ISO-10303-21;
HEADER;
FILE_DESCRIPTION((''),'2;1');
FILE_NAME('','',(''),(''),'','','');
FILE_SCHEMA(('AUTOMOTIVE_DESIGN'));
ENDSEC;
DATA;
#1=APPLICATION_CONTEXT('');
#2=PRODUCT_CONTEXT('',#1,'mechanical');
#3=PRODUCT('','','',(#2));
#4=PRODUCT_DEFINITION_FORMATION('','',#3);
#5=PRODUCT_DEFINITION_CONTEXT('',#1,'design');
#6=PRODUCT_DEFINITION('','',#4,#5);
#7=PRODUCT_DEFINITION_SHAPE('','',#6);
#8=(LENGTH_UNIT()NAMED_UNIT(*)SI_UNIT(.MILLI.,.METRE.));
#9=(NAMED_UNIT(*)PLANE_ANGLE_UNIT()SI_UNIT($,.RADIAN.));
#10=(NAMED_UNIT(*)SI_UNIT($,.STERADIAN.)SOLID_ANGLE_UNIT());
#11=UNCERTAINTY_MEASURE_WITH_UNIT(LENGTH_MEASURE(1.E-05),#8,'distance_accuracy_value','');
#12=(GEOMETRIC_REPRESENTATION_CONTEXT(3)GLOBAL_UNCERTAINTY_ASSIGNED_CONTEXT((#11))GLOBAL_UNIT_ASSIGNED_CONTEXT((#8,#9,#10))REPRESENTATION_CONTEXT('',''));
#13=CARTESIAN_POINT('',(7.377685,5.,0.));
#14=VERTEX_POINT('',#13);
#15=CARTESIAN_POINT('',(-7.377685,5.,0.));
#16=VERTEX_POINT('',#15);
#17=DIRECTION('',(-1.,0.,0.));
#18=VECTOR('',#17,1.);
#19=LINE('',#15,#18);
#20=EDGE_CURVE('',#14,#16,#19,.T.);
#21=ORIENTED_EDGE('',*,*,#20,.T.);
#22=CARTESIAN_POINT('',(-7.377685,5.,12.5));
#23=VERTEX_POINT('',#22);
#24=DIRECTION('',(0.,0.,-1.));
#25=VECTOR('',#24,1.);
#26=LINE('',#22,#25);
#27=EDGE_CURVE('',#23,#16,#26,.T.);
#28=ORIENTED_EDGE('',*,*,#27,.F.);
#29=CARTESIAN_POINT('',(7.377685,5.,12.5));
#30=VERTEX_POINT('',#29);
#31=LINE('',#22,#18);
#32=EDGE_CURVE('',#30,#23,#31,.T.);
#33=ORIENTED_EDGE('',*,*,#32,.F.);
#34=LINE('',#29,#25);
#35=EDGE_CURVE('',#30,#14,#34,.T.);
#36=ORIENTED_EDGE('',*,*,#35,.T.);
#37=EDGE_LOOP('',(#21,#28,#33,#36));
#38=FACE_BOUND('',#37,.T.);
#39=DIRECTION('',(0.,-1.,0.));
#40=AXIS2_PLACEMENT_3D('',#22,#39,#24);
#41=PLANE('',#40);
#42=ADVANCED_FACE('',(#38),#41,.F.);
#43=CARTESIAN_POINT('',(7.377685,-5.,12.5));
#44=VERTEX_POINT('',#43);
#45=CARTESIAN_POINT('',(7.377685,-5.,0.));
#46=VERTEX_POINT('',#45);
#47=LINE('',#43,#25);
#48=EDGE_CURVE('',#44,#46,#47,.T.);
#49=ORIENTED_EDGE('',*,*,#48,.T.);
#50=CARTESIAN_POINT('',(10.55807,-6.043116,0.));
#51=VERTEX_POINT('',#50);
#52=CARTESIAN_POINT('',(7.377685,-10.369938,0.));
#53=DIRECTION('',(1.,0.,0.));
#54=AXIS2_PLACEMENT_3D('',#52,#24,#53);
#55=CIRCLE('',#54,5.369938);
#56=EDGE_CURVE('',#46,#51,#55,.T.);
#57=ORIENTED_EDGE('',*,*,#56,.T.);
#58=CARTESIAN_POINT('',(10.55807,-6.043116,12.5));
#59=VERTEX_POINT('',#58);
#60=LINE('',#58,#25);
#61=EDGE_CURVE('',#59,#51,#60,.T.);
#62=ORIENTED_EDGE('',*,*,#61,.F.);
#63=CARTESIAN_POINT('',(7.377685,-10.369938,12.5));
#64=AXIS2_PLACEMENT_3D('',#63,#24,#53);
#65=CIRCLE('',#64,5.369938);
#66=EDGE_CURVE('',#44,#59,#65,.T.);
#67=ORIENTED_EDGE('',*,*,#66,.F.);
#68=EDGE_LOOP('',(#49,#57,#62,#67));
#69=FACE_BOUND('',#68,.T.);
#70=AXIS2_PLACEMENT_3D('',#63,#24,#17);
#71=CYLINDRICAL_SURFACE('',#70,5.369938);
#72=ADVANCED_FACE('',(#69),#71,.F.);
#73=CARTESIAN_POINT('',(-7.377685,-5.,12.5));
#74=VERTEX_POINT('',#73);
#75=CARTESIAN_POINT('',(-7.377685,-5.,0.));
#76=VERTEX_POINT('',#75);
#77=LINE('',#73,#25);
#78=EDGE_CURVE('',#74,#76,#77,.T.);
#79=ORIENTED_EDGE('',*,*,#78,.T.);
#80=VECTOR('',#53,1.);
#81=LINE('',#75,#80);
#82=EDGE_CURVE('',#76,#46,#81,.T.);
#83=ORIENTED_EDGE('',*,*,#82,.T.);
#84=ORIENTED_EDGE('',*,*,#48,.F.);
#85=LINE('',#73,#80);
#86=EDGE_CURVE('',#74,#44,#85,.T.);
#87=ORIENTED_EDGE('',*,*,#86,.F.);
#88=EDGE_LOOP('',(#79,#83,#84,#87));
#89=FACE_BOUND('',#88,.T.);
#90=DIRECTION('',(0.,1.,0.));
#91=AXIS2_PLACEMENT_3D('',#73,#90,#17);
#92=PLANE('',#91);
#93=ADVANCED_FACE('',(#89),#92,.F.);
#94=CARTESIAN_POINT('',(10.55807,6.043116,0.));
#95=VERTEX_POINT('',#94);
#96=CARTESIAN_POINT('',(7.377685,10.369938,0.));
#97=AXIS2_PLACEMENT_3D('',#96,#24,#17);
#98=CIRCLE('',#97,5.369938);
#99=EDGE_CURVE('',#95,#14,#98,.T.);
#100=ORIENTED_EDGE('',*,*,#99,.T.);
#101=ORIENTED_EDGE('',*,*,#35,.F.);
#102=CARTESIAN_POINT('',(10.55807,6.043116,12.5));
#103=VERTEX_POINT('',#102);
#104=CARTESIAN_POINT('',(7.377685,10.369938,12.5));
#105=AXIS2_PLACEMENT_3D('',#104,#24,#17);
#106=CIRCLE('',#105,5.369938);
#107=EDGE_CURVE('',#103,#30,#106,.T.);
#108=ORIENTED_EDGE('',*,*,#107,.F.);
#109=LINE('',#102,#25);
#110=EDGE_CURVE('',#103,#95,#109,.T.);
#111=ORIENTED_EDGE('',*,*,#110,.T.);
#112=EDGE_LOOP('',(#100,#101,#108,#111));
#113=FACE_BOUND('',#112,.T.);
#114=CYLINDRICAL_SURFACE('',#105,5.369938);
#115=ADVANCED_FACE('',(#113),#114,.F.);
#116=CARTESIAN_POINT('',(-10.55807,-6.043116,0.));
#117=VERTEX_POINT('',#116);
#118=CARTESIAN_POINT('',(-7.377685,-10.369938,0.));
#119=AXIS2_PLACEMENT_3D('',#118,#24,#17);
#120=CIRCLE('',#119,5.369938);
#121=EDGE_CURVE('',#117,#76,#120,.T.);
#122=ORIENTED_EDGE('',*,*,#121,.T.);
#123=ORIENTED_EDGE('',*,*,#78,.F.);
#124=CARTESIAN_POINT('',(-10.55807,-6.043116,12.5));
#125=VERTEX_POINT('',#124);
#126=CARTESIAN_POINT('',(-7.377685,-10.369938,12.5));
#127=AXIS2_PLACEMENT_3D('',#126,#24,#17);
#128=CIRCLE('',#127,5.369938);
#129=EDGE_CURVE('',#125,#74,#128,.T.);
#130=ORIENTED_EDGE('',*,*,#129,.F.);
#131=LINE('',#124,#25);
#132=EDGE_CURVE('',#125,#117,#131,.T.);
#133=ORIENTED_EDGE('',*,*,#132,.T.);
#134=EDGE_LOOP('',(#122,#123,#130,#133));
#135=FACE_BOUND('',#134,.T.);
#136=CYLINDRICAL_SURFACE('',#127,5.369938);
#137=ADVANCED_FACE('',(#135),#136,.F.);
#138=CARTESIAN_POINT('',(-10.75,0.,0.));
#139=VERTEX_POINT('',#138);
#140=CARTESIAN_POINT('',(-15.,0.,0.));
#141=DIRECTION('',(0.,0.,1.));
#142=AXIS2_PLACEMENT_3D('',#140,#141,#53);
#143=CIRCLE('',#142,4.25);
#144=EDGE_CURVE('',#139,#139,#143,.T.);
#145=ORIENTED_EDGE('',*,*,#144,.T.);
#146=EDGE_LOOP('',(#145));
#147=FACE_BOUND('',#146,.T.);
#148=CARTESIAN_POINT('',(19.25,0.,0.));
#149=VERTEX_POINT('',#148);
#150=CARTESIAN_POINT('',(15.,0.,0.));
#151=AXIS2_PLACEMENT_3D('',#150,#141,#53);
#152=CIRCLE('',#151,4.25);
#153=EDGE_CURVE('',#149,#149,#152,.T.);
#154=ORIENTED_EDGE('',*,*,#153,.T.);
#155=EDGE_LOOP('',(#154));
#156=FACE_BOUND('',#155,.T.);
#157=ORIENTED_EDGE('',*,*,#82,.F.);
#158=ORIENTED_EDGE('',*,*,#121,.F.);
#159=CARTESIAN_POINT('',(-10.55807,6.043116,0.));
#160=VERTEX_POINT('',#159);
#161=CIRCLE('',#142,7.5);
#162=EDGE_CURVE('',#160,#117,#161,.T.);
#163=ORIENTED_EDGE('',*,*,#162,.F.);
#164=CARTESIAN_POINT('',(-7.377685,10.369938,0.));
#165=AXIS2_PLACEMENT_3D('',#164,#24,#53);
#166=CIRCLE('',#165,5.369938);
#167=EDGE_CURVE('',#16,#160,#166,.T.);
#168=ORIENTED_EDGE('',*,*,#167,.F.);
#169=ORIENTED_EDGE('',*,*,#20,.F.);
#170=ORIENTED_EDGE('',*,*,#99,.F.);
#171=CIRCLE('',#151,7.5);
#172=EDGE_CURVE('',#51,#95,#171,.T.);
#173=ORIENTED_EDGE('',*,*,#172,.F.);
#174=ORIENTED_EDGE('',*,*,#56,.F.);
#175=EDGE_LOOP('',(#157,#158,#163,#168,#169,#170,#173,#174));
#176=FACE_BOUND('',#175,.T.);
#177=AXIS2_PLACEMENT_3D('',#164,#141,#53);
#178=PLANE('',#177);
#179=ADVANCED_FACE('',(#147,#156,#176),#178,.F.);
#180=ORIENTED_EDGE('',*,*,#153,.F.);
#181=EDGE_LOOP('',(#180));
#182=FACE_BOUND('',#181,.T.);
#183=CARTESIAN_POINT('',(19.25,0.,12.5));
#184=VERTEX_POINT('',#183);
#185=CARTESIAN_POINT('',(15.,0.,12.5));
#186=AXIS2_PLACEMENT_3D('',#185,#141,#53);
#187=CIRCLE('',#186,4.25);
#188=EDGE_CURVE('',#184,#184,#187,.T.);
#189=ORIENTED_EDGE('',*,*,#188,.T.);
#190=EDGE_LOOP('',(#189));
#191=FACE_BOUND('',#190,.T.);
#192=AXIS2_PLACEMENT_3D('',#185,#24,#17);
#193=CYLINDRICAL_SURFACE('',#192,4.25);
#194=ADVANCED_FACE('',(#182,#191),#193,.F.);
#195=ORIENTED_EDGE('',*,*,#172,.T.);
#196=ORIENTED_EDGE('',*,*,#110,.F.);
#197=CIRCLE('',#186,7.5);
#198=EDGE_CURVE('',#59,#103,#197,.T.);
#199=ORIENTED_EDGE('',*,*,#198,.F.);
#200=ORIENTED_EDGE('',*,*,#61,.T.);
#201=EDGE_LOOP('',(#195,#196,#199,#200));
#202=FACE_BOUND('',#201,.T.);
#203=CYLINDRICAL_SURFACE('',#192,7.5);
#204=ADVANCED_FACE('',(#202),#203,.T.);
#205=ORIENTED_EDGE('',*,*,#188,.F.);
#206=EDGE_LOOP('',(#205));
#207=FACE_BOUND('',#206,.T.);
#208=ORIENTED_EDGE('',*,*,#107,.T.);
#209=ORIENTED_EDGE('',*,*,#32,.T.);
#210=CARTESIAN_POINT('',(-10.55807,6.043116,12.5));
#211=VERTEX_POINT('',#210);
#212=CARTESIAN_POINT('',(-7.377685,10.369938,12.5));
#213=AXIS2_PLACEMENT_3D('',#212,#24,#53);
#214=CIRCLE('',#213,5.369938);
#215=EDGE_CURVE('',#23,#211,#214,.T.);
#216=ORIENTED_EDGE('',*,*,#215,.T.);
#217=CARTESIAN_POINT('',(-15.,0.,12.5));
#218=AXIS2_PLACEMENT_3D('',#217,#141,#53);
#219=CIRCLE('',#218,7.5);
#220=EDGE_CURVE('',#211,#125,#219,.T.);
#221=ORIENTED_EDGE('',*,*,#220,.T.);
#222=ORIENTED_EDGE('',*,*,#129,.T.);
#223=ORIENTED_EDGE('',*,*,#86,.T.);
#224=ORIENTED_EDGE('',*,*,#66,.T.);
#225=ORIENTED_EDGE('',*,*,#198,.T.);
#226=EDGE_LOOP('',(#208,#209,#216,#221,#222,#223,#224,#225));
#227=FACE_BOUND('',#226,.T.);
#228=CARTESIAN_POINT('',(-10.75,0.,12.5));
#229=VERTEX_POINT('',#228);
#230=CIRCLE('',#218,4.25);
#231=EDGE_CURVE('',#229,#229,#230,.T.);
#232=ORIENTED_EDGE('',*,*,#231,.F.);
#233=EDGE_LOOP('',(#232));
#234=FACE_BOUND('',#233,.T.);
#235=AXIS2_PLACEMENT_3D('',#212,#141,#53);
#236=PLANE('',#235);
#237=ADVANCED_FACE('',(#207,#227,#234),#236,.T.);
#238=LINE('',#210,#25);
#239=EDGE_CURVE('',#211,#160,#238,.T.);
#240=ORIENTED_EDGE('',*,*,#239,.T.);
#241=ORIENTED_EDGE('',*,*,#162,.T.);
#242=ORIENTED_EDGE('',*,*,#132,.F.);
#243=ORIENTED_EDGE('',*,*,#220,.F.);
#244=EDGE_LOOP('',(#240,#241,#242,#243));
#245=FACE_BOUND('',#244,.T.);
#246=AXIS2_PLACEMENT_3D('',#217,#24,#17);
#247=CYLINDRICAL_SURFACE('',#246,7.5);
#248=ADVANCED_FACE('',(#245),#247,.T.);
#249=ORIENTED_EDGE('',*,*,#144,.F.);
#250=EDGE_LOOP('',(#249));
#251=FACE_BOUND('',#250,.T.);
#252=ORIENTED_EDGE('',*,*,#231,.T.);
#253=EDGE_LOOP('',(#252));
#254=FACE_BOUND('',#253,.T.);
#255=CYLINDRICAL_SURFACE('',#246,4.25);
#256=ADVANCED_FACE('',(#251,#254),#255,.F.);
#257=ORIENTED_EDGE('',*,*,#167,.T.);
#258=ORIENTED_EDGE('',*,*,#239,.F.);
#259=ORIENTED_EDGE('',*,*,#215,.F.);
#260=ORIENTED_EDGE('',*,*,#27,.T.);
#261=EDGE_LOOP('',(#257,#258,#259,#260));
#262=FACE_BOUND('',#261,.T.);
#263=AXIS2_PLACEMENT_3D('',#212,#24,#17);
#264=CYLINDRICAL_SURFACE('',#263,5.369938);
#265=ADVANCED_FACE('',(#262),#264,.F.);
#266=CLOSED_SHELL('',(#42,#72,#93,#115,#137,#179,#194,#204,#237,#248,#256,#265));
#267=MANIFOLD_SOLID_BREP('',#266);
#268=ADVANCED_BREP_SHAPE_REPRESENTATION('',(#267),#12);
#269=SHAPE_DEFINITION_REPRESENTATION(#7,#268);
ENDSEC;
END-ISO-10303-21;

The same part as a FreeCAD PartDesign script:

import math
import FreeCAD as App
import Part
import Sketcher
Q = App.Units.Quantity

doc = App.newDocument("Part")
body = doc.addObject("PartDesign::Body", "Body")

sketch1 = body.newObject("Sketcher::SketchObject", "Sketch")
sketch1.AttachmentSupport = (doc.getObject("XY_Plane"), [""])
sketch1.MapMode = "FlatFace"
sketch1.addGeometry(Part.LineSegment(App.Vector(-7.4, -5, 0), App.Vector(7.4, -5, 0)), False)
sketch1.addGeometry(Part.ArcOfCircle(Part.Circle(App.Vector(7.4, -10.4, 0), App.Vector(0, 0, 1), 5.4), math.radians(54), math.radians(90)), False)
sketch1.addGeometry(Part.ArcOfCircle(Part.Circle(App.Vector(15, 0, 0), App.Vector(0, 0, 1), 7.5), math.radians(-126), math.radians(126)), False)
sketch1.addGeometry(Part.ArcOfCircle(Part.Circle(App.Vector(7.4, 10.4, 0), App.Vector(0, 0, 1), 5.4), math.radians(-90), math.radians(-54)), False)
sketch1.addGeometry(Part.LineSegment(App.Vector(7.4, 5, 0), App.Vector(-7.4, 5, 0)), False)
sketch1.addGeometry(Part.ArcOfCircle(Part.Circle(App.Vector(-7.4, 10.4, 0), App.Vector(0, 0, 1), 5.4), math.radians(-126), math.radians(-90)), False)
sketch1.addGeometry(Part.ArcOfCircle(Part.Circle(App.Vector(-15, 0, 0), App.Vector(0, 0, 1), 7.5), math.radians(54), math.radians(306)), False)
sketch1.addGeometry(Part.ArcOfCircle(Part.Circle(App.Vector(-7.4, -10.4, 0), App.Vector(0, 0, 1), 5.4), math.radians(90), math.radians(126)), False)
sketch1.addGeometry(Part.Circle(App.Vector(-15, 0, 0), App.Vector(0, 0, 1), 4.2), False)
sketch1.addGeometry(Part.Circle(App.Vector(15, 0, 0), App.Vector(0, 0, 1), 4.2), False)
sketch1.addConstraint(Sketcher.Constraint("Tangent", 0, 2, 1, 2))
sketch1.addConstraint(Sketcher.Constraint("Tangent", 1, 1, 2, 1))
sketch1.addConstraint(Sketcher.Constraint("Tangent", 2, 2, 3, 2))
sketch1.addConstraint(Sketcher.Constraint("Tangent", 3, 1, 4, 1))
sketch1.addConstraint(Sketcher.Constraint("Tangent", 4, 2, 5, 2))
sketch1.addConstraint(Sketcher.Constraint("Tangent", 5, 1, 6, 1))
sketch1.addConstraint(Sketcher.Constraint("Tangent", 6, 2, 7, 2))
sketch1.addConstraint(Sketcher.Constraint("Tangent", 7, 1, 0, 1))
sketch1.addConstraint(Sketcher.Constraint("Horizontal", 0))
sketch1.addConstraint(Sketcher.Constraint("Horizontal", 4))
sketch1.addConstraint(Sketcher.Constraint("Coincident", 8, 3, 6, 3))
sketch1.addConstraint(Sketcher.Constraint("Coincident", 9, 3, 2, 3))
sketch1.addConstraint(Sketcher.Constraint("Equal", 1, 3))
sketch1.addConstraint(Sketcher.Constraint("Equal", 3, 5))
sketch1.addConstraint(Sketcher.Constraint("Equal", 2, 6))
sketch1.addConstraint(Sketcher.Constraint("Equal", 5, 7))
sketch1.addConstraint(Sketcher.Constraint("Equal", 8, 9))
sketch1.addConstraint(Sketcher.Constraint("Symmetric", 1, 3, 5, 3, -1, 1))
sketch1.addConstraint(Sketcher.Constraint("Symmetric", 2, 3, 6, 3, -2))
sketch1.addConstraint(Sketcher.Constraint("Diameter", 8, Q("8.5 mm")))
sketch1.addConstraint(Sketcher.Constraint("Radius", 2, Q("7.5 mm")))
sketch1.addConstraint(Sketcher.Constraint("DistanceX", -1, 1, 2, 3, Q("15 mm")))
sketch1.addConstraint(Sketcher.Constraint("DistanceY", 0, 2, -1, 1, Q("5 mm")))
sketch1.addConstraint(Sketcher.Constraint("Radius", 1, Q("5.369938 mm")))
pad1 = body.newObject("PartDesign::Pad", "Pad")
pad1.Profile = sketch1
pad1.Length = 12.5

doc.recompute()
